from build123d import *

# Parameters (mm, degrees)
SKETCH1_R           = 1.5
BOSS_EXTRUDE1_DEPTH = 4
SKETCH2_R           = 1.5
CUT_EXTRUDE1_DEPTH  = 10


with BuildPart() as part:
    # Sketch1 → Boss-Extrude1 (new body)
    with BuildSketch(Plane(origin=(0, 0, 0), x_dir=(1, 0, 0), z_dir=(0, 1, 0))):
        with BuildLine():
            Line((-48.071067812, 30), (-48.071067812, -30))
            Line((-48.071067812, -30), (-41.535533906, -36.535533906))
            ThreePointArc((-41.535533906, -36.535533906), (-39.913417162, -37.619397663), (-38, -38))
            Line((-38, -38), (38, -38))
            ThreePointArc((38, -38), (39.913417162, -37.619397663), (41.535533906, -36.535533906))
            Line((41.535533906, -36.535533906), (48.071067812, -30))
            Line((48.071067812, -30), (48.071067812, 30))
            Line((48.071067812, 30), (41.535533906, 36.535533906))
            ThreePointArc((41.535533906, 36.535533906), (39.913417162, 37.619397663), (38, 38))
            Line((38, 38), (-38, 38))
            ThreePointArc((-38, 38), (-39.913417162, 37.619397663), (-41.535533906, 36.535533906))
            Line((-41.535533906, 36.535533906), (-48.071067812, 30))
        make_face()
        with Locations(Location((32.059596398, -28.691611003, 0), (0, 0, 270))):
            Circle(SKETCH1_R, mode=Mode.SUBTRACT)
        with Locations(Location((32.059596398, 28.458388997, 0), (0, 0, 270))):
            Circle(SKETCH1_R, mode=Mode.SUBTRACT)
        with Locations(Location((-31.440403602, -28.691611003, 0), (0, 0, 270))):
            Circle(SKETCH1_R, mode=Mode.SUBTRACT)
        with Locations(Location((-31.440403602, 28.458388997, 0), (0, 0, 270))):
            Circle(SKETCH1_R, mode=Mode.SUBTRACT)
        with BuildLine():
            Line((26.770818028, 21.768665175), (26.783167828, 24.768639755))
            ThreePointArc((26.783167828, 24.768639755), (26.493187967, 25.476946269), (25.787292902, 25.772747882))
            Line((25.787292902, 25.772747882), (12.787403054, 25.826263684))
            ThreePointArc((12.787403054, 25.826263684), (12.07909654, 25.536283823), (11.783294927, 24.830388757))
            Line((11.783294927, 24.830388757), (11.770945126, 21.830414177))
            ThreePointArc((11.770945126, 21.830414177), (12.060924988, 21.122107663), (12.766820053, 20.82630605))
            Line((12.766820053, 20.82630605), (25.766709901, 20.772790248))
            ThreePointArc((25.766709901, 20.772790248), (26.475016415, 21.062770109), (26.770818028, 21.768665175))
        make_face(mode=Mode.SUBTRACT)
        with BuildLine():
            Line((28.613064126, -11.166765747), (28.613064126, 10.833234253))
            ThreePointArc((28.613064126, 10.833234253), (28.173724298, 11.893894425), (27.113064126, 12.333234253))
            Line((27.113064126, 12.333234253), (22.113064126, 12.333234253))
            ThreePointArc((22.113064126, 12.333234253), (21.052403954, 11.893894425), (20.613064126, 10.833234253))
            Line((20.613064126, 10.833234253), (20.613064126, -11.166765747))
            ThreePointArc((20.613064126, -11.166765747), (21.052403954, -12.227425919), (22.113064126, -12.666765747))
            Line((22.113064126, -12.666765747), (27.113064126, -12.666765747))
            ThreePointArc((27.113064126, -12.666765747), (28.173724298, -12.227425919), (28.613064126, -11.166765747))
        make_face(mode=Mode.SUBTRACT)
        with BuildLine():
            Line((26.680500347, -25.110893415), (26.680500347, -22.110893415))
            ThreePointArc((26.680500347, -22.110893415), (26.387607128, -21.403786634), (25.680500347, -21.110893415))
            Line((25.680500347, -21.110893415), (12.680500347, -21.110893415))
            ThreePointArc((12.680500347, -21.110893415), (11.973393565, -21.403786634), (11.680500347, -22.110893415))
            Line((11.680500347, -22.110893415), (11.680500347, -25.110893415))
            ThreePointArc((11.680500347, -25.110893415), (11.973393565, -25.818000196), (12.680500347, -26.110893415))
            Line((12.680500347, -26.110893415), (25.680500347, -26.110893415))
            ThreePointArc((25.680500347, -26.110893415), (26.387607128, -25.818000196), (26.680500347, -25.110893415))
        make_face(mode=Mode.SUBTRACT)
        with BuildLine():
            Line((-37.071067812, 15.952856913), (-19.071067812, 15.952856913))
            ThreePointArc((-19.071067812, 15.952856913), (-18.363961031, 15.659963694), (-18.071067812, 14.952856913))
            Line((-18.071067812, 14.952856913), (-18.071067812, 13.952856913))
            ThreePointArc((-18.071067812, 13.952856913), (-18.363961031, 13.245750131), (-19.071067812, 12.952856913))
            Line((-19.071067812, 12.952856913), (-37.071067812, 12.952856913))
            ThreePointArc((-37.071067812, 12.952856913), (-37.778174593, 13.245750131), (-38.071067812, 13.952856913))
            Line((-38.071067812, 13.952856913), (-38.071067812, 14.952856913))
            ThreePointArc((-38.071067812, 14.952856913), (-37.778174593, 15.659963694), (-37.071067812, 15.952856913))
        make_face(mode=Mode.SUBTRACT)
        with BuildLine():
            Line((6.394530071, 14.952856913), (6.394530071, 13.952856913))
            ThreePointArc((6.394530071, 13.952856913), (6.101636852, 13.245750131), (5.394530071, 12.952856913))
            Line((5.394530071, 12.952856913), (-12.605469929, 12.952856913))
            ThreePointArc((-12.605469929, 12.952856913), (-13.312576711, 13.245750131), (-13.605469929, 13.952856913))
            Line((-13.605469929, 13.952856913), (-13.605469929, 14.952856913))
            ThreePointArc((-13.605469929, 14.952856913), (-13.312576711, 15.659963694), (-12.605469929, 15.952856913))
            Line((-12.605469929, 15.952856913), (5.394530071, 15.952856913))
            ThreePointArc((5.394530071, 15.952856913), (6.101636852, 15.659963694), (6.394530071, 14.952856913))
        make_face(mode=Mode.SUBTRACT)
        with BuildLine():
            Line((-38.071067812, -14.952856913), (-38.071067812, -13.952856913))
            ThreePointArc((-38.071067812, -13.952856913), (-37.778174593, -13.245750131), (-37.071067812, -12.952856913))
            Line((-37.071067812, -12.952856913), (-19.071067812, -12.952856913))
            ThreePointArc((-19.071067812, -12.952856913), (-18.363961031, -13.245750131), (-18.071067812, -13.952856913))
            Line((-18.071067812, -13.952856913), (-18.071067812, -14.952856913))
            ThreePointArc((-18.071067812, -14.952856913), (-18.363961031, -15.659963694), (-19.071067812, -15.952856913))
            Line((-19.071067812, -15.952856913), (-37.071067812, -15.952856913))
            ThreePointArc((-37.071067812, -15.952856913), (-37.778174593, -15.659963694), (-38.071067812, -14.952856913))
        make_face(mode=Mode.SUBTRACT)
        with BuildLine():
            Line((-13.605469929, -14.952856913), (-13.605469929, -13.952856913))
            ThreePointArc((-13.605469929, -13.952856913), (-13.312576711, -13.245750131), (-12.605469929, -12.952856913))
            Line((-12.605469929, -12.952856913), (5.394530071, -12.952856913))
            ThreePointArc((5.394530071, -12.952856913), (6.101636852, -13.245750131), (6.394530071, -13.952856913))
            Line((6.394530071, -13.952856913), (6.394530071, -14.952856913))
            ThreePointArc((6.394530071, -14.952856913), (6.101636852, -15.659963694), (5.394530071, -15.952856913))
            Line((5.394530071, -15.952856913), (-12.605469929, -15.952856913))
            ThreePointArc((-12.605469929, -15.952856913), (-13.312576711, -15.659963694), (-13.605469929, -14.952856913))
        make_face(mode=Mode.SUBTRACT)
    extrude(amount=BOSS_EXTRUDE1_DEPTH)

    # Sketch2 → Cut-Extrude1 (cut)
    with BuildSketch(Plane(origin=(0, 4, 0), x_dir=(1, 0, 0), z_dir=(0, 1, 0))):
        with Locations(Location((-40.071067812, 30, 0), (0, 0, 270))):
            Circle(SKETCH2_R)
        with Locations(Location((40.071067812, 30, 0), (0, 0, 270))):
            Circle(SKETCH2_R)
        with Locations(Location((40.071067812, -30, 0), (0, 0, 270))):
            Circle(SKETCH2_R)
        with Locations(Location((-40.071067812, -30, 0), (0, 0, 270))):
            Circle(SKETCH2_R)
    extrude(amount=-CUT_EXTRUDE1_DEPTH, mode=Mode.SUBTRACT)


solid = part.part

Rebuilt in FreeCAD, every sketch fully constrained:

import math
import FreeCAD as App
import Part
import Sketcher

doc = App.newDocument("Part")
body = doc.addObject("PartDesign::Body", "Body")

# Sketch on XZ plane
sketch1 = body.newObject("Sketcher::SketchObject", "Sketch")
sketch1.AttachmentSupport = (doc.getObject("XZ_Plane"), [""])
sketch1.MapMode = "FlatFace"
sketch1.addGeometry([
    Part.LineSegment(App.Vector(-48.1, -30, 0), App.Vector(-48.1, 30, 0)),  # 0
    Part.LineSegment(App.Vector(-48.1, 30, 0), App.Vector(-41.5, 36.5, 0)),  # 1
    Part.ArcOfCircle(Part.Circle(App.Vector(-38, 33, 0), App.Vector(0, 0, 1), 5), math.radians(90), math.radians(135)),  # 2
    Part.LineSegment(App.Vector(-38, 38, 0), App.Vector(38, 38, 0)),  # 3
    Part.ArcOfCircle(Part.Circle(App.Vector(38, 33, 0), App.Vector(0, 0, 1), 5), math.radians(45), math.radians(90)),  # 4
    Part.LineSegment(App.Vector(41.5, 36.5, 0), App.Vector(48.1, 30, 0)),  # 5
    Part.LineSegment(App.Vector(48.1, 30, 0), App.Vector(48.1, -30, 0)),  # 6
    Part.LineSegment(App.Vector(48.1, -30, 0), App.Vector(41.5, -36.5, 0)),  # 7
    Part.ArcOfCircle(Part.Circle(App.Vector(38, -33, 0), App.Vector(0, 0, 1), 5), math.radians(-90), math.radians(-45)),  # 8
    Part.LineSegment(App.Vector(38, -38, 0), App.Vector(-38, -38, 0)),  # 9
    Part.ArcOfCircle(Part.Circle(App.Vector(-38, -33, 0), App.Vector(0, 0, 1), 5), math.radians(-135), math.radians(-90)),  # 10
    Part.LineSegment(App.Vector(-41.5, -36.5, 0), App.Vector(-48.1, -30, 0)),  # 11
    Part.Circle(App.Vector(-31.4, 28.7, 0), App.Vector(0, 0, 1), 1.5),  # 12
    Part.ArcOfCircle(Part.Circle(App.Vector(-37.1, 15, 0), App.Vector(0, 0, 1), 1), math.radians(90), math.radians(180)),  # 13
    Part.LineSegment(App.Vector(-38.1, 15, 0), App.Vector(-38.1, 14, 0)),  # 14
    Part.ArcOfCircle(Part.Circle(App.Vector(-37.1, 14, 0), App.Vector(0, 0, 1), 1), math.radians(180), math.radians(270)),  # 15
    Part.LineSegment(App.Vector(-37.1, 13, 0), App.Vector(-19.1, 13, 0)),  # 16
    Part.ArcOfCircle(Part.Circle(App.Vector(-19.1, 14, 0), App.Vector(0, 0, 1), 1), math.radians(-90), math.radians(0)),  # 17
    Part.LineSegment(App.Vector(-18.1, 14, 0), App.Vector(-18.1, 15, 0)),  # 18
    Part.ArcOfCircle(Part.Circle(App.Vector(-19.1, 15, 0), App.Vector(0, 0, 1), 1), math.radians(0), math.radians(90)),  # 19
    Part.LineSegment(App.Vector(-19.1, 16, 0), App.Vector(-37.1, 16, 0)),  # 20
    Part.ArcOfCircle(Part.Circle(App.Vector(-12.6, 15, 0), App.Vector(0, 0, 1), 1), math.radians(90), math.radians(180)),  # 21
    Part.LineSegment(App.Vector(-13.6, 15, 0), App.Vector(-13.6, 14, 0)),  # 22
    Part.ArcOfCircle(Part.Circle(App.Vector(-12.6, 14, 0), App.Vector(0, 0, 1), 1), math.radians(180), math.radians(270)),  # 23
    Part.LineSegment(App.Vector(-12.6, 13, 0), App.Vector(5.4, 13, 0)),  # 24
    Part.ArcOfCircle(Part.Circle(App.Vector(5.4, 14, 0), App.Vector(0, 0, 1), 1), math.radians(-90), math.radians(0)),  # 25
    Part.LineSegment(App.Vector(6.4, 14, 0), App.Vector(6.4, 15, 0)),  # 26
    Part.ArcOfCircle(Part.Circle(App.Vector(5.4, 15, 0), App.Vector(0, 0, 1), 1), math.radians(0), math.radians(90)),  # 27
    Part.LineSegment(App.Vector(5.4, 16, 0), App.Vector(-12.6, 16, 0)),  # 28
    Part.LineSegment(App.Vector(26.7, 22.1, 0), App.Vector(26.7, 25.1, 0)),  # 29
    Part.ArcOfCircle(Part.Circle(App.Vector(25.7, 25.1, 0), App.Vector(0, 0, 1), 1), math.radians(0), math.radians(90)),  # 30
    Part.LineSegment(App.Vector(25.7, 26.1, 0), App.Vector(12.7, 26.1, 0)),  # 31
    Part.ArcOfCircle(Part.Circle(App.Vector(12.7, 25.1, 0), App.Vector(0, 0, 1), 1), math.radians(90), math.radians(180)),  # 32
    Part.LineSegment(App.Vector(11.7, 25.1, 0), App.Vector(11.7, 22.1, 0)),  # 33
    Part.ArcOfCircle(Part.Circle(App.Vector(12.7, 22.1, 0), App.Vector(0, 0, 1), 1), math.radians(180), math.radians(270)),  # 34
    Part.LineSegment(App.Vector(12.7, 21.1, 0), App.Vector(25.7, 21.1, 0)),  # 35
    Part.ArcOfCircle(Part.Circle(App.Vector(25.7, 22.1, 0), App.Vector(0, 0, 1), 1), math.radians(-90), math.radians(0)),  # 36
    Part.Circle(App.Vector(32.1, 28.7, 0), App.Vector(0, 0, 1), 1.5),  # 37
    Part.LineSegment(App.Vector(28.6, -10.8, 0), App.Vector(28.6, 11.2, 0)),  # 38
    Part.ArcOfCircle(Part.Circle(App.Vector(27.1, 11.2, 0), App.Vector(0, 0, 1), 1.5), math.radians(0), math.radians(90)),  # 39
    Part.LineSegment(App.Vector(27.1, 12.7, 0), App.Vector(22.1, 12.7, 0)),  # 40
    Part.ArcOfCircle(Part.Circle(App.Vector(22.1, 11.2, 0), App.Vector(0, 0, 1), 1.5), math.radians(90), math.radians(180)),  # 41
    Part.LineSegment(App.Vector(20.6, 11.2, 0), App.Vector(20.6, -10.8, 0)),  # 42
    Part.ArcOfCircle(Part.Circle(App.Vector(22.1, -10.8, 0), App.Vector(0, 0, 1), 1.5), math.radians(180), math.radians(270)),  # 43
    Part.LineSegment(App.Vector(22.1, -12.3, 0), App.Vector(27.1, -12.3, 0)),  # 44
    Part.ArcOfCircle(Part.Circle(App.Vector(27.1, -10.8, 0), App.Vector(0, 0, 1), 1.5), math.radians(-90), math.radians(0)),  # 45
    Part.ArcOfCircle(Part.Circle(App.Vector(-37.1, -15, 0), App.Vector(0, 0, 1), 1), math.radians(-180), math.radians(-90)),  # 46
    Part.LineSegment(App.Vector(-37.1, -16, 0), App.Vector(-19.1, -16, 0)),  # 47
    Part.ArcOfCircle(Part.Circle(App.Vector(-19.1, -15, 0), App.Vector(0, 0, 1), 1), math.radians(-90), math.radians(0)),  # 48
    Part.LineSegment(App.Vector(-18.1, -15, 0), App.Vector(-18.1, -14, 0)),  # 49
    Part.ArcOfCircle(Part.Circle(App.Vector(-19.1, -14, 0), App.Vector(0, 0, 1), 1), math.radians(0), math.radians(90)),  # 50
    Part.LineSegment(App.Vector(-19.1, -13, 0), App.Vector(-37.1, -13, 0)),  # 51
    Part.ArcOfCircle(Part.Circle(App.Vector(-37.1, -14, 0), App.Vector(0, 0, 1), 1), math.radians(90), math.radians(180)),  # 52
    Part.LineSegment(App.Vector(-38.1, -14, 0), App.Vector(-38.1, -15, 0)),  # 53
    Part.ArcOfCircle(Part.Circle(App.Vector(5.4, -15, 0), App.Vector(0, 0, 1), 1), math.radians(-90), math.radians(0)),  # 54
    Part.LineSegment(App.Vector(6.4, -15, 0), App.Vector(6.4, -14, 0)),  # 55
    Part.ArcOfCircle(Part.Circle(App.Vector(5.4, -14, 0), App.Vector(0, 0, 1), 1), math.radians(0), math.radians(90)),  # 56
    Part.LineSegment(App.Vector(5.4, -13, 0), App.Vector(-12.6, -13, 0)),  # 57
    Part.ArcOfCircle(Part.Circle(App.Vector(-12.6, -14, 0), App.Vector(0, 0, 1), 1), math.radians(90), math.radians(180)),  # 58
    Part.LineSegment(App.Vector(-13.6, -14, 0), App.Vector(-13.6, -15, 0)),  # 59
    Part.ArcOfCircle(Part.Circle(App.Vector(-12.6, -15, 0), App.Vector(0, 0, 1), 1), math.radians(180), math.radians(270)),  # 60
    Part.LineSegment(App.Vector(-12.6, -16, 0), App.Vector(5.4, -16, 0)),  # 61
    Part.Circle(App.Vector(-31.4, -28.5, 0), App.Vector(0, 0, 1), 1.5),  # 62
    Part.LineSegment(App.Vector(26.8, -24.8, 0), App.Vector(26.8, -21.8, 0)),  # 63
    Part.ArcOfCircle(Part.Circle(App.Vector(25.8, -21.8, 0), App.Vector(0, 0, 1), 1), math.radians(0), math.radians(90)),  # 64
    Part.LineSegment(App.Vector(25.8, -20.8, 0), App.Vector(12.8, -20.8, 0)),  # 65
    Part.ArcOfCircle(Part.Circle(App.Vector(12.8, -21.8, 0), App.Vector(0, 0, 1), 1), math.radians(90), math.radians(180)),  # 66
    Part.LineSegment(App.Vector(11.8, -21.8, 0), App.Vector(11.8, -24.8, 0)),  # 67
    Part.ArcOfCircle(Part.Circle(App.Vector(12.8, -24.8, 0), App.Vector(0, 0, 1), 1), math.radians(-180), math.radians(-90)),  # 68
    Part.LineSegment(App.Vector(12.8, -25.8, 0), App.Vector(25.8, -25.8, 0)),  # 69
    Part.ArcOfCircle(Part.Circle(App.Vector(25.8, -24.8, 0), App.Vector(0, 0, 1), 1), math.radians(-90), math.radians(0)),  # 70
    Part.Circle(App.Vector(32.1, -28.5, 0), App.Vector(0, 0, 1), 1.5),  # 71
], False)
sketch1.addConstraint([
    Sketcher.Constraint("Coincident", 0, 2, 1, 1),
    Sketcher.Constraint("Tangent", 1, 2, 2, 2),
    Sketcher.Constraint("Tangent", 2, 1, 3, 1),
    Sketcher.Constraint("Tangent", 3, 2, 4, 2),
    Sketcher.Constraint("Tangent", 4, 1, 5, 1),
    Sketcher.Constraint("Coincident", 5, 2, 6, 1),
    Sketcher.Constraint("Coincident", 6, 2, 7, 1),
    Sketcher.Constraint("Tangent", 7, 2, 8, 2),
    Sketcher.Constraint("Tangent", 8, 1, 9, 1),
    Sketcher.Constraint("Tangent", 9, 2, 10, 2),
    Sketcher.Constraint("Tangent", 10, 1, 11, 1),
    Sketcher.Constraint("Coincident", 11, 2, 0, 1),
    Sketcher.Constraint("Tangent", 13, 2, 14, 1),
    Sketcher.Constraint("Tangent", 14, 2, 15, 1),
    Sketcher.Constraint("Tangent", 15, 2, 16, 1),
    Sketcher.Constraint("Tangent", 16, 2, 17, 1),
    Sketcher.Constraint("Tangent", 17, 2, 18, 1),
    Sketcher.Constraint("Tangent", 18, 2, 19, 1),
    Sketcher.Constraint("Tangent", 19, 2, 20, 1),
    Sketcher.Constraint("Tangent", 20, 2, 13, 1),
    Sketcher.Constraint("Tangent", 21, 2, 22, 1),
    Sketcher.Constraint("Tangent", 22, 2, 23, 1),
    Sketcher.Constraint("Tangent", 23, 2, 24, 1),
    Sketcher.Constraint("Tangent", 24, 2, 25, 1),
    Sketcher.Constraint("Tangent", 25, 2, 26, 1),
    Sketcher.Constraint("Tangent", 26, 2, 27, 1),
    Sketcher.Constraint("Tangent", 27, 2, 28, 1),
    Sketcher.Constraint("Tangent", 28, 2, 21, 1),
    Sketcher.Constraint("Tangent", 29, 2, 30, 1),
    Sketcher.Constraint("Tangent", 30, 2, 31, 1),
    Sketcher.Constraint("Tangent", 31, 2, 32, 1),
    Sketcher.Constraint("Tangent", 32, 2, 33, 1),
    Sketcher.Constraint("Tangent", 33, 2, 34, 1),
    Sketcher.Constraint("Tangent", 34, 2, 35, 1),
    Sketcher.Constraint("Tangent", 35, 2, 36, 1),
    Sketcher.Constraint("Tangent", 36, 2, 29, 1),
    Sketcher.Constraint("Tangent", 38, 2, 39, 1),
    Sketcher.Constraint("Tangent", 39, 2, 40, 1),
    Sketcher.Constraint("Tangent", 40, 2, 41, 1),
    Sketcher.Constraint("Tangent", 41, 2, 42, 1),
    Sketcher.Constraint("Tangent", 42, 2, 43, 1),
    Sketcher.Constraint("Tangent", 43, 2, 44, 1),
    Sketcher.Constraint("Tangent", 44, 2, 45, 1),
    Sketcher.Constraint("Tangent", 45, 2, 38, 1),
    Sketcher.Constraint("Tangent", 46, 2, 47, 1),
    Sketcher.Constraint("Tangent", 47, 2, 48, 1),
    Sketcher.Constraint("Tangent", 48, 2, 49, 1),
    Sketcher.Constraint("Tangent", 49, 2, 50, 1),
    Sketcher.Constraint("Tangent", 50, 2, 51, 1),
    Sketcher.Constraint("Tangent", 51, 2, 52, 1),
    Sketcher.Constraint("Tangent", 52, 2, 53, 1),
    Sketcher.Constraint("Tangent", 53, 2, 46, 1),
    Sketcher.Constraint("Tangent", 54, 2, 55, 1),
    Sketcher.Constraint("Tangent", 55, 2, 56, 1),
    Sketcher.Constraint("Tangent", 56, 2, 57, 1),
    Sketcher.Constraint("Tangent", 57, 2, 58, 1),
    Sketcher.Constraint("Tangent", 58, 2, 59, 1),
    Sketcher.Constraint("Tangent", 59, 2, 60, 1),
    Sketcher.Constraint("Tangent", 60, 2, 61, 1),
    Sketcher.Constraint("Tangent", 61, 2, 54, 1),
    Sketcher.Constraint("Tangent", 63, 2, 64, 1),
    Sketcher.Constraint("Tangent", 64, 2, 65, 1),
    Sketcher.Constraint("Tangent", 65, 2, 66, 1),
    Sketcher.Constraint("Tangent", 66, 2, 67, 1),
    Sketcher.Constraint("Tangent", 67, 2, 68, 1),
    Sketcher.Constraint("Tangent", 68, 2, 69, 1),
    Sketcher.Constraint("Tangent", 69, 2, 70, 1),
    Sketcher.Constraint("Tangent", 70, 2, 63, 1),
    Sketcher.Constraint("Vertical", 0),
    Sketcher.Constraint("Horizontal", 3),
    Sketcher.Constraint("Vertical", 6),
    Sketcher.Constraint("Horizontal", 9),
    Sketcher.Constraint("Vertical", 14),
    Sketcher.Constraint("Horizontal", 16),
    Sketcher.Constraint("Vertical", 18),
    Sketcher.Constraint("Horizontal", 20),
    Sketcher.Constraint("Vertical", 22),
    Sketcher.Constraint("Horizontal", 24),
    Sketcher.Constraint("Vertical", 26),
    Sketcher.Constraint("Horizontal", 28),
    Sketcher.Constraint("Vertical", 29),
    Sketcher.Constraint("Horizontal", 31),
    Sketcher.Constraint("Vertical", 33),
    Sketcher.Constraint("Horizontal", 35),
    Sketcher.Constraint("Vertical", 38),
    Sketcher.Constraint("Horizontal", 40),
    Sketcher.Constraint("Vertical", 42),
    Sketcher.Constraint("Horizontal", 44),
    Sketcher.Constraint("Horizontal", 47),
    Sketcher.Constraint("Vertical", 49),
    Sketcher.Constraint("Horizontal", 51),
    Sketcher.Constraint("Vertical", 53),
    Sketcher.Constraint("Vertical", 55),
    Sketcher.Constraint("Horizontal", 57),
    Sketcher.Constraint("Vertical", 59),
    Sketcher.Constraint("Horizontal", 61),
    Sketcher.Constraint("Equal", 2, 4),
    Sketcher.Constraint("Equal", 4, 8),
    Sketcher.Constraint("Equal", 8, 10),
    Sketcher.Constraint("Equal", 13, 15),
    Sketcher.Constraint("Equal", 15, 17),
    Sketcher.Constraint("Equal", 17, 19),
    Sketcher.Constraint("Equal", 19, 21),
    Sketcher.Constraint("Equal", 21, 23),
    Sketcher.Constraint("Equal", 23, 25),
    Sketcher.Constraint("Equal", 25, 27),
    Sketcher.Constraint("Equal", 27, 30),
    Sketcher.Constraint("Equal", 30, 32),
    Sketcher.Constraint("Equal", 32, 34),
    Sketcher.Constraint("Equal", 34, 36),
    Sketcher.Constraint("Equal", 12, 37),
    Sketcher.Constraint("Equal", 37, 39),
    Sketcher.Constraint("Equal", 39, 41),
    Sketcher.Constraint("Equal", 41, 43),
    Sketcher.Constraint("Equal", 43, 45),
    Sketcher.Constraint("Equal", 36, 46),
    Sketcher.Constraint("Equal", 46, 48),
    Sketcher.Constraint("Equal", 48, 50),
    Sketcher.Constraint("Equal", 50, 52),
    Sketcher.Constraint("Equal", 52, 54),
    Sketcher.Constraint("Equal", 54, 56),
    Sketcher.Constraint("Equal", 56, 58),
    Sketcher.Constraint("Equal", 58, 60),
    Sketcher.Constraint("Equal", 45, 62),
    Sketcher.Constraint("Equal", 60, 64),
    Sketcher.Constraint("Equal", 64, 66),
    Sketcher.Constraint("Equal", 66, 68),
    Sketcher.Constraint("Equal", 68, 70),
    Sketcher.Constraint("Equal", 62, 71),
    Sketcher.Constraint("Symmetric", 2, 3, 8, 3, -1, 1),
    Sketcher.Constraint("Symmetric", 0, 2, 6, 2, -1, 1),
    Sketcher.Constraint("Symmetric", 4, 1, 10, 1, -1, 1),
    Sketcher.Constraint("Symmetric", 1, 2, 4, 1, -2),
    Sketcher.Constraint("Symmetric", 13, 3, 46, 3, -1),
    Sketcher.Constraint("Symmetric", 17, 3, 50, 3, -1),
    Sketcher.Constraint("Symmetric", 27, 3, 54, 3, -1),
    Sketcher.Constraint("Symmetric", 23, 3, 58, 3, -1),
    Sketcher.Constraint("Perpendicular", 1, 5),
    Sketcher.Constraint("Perpendicular", 63, 65),
    Sketcher.Constraint("Perpendicular", 65, 67),
    Sketcher.Constraint("Perpendicular", 67, 69),
    Sketcher.Constraint("Horizontal", 19, 3, 21, 3),
    Sketcher.Constraint("Horizontal", 17, 3, 23, 3),
    Sketcher.Constraint("Horizontal", 12, 3, 37, 3),
    Sketcher.Constraint("Horizontal", 62, 3, 71, 3),
    Sketcher.Constraint("Vertical", 12, 3, 62, 3),
    Sketcher.Constraint("Vertical", 37, 3, 71, 3),
    Sketcher.Constraint("Equal", 20, 24),
    Sketcher.Constraint("Diameter", 12, 3.0),
    Sketcher.Constraint("Radius", 2, 5.0),
    Sketcher.Constraint("Radius", 13, 1.0),
    Sketcher.Constraint("DistanceX", 3, 1, 3, 2, 76.0),
    Sketcher.Constraint("DistanceX", 16, 1, 16, 2, 18.0),
    Sketcher.Constraint("DistanceX", 31, 2, 31, 1, 13.0),
    Sketcher.Constraint("DistanceX", 40, 2, 40, 1, 5.0),
    Sketcher.Constraint("DistanceY", 0, 1, 0, 2, 60.0),
    Sketcher.Constraint("DistanceY", 14, 2, 14, 1, 1.0),
    Sketcher.Constraint("DistanceY", 29, 1, 29, 2, 3.0),
    Sketcher.Constraint("DistanceY", 38, 1, 38, 2, 22.0),
    Sketcher.Constraint("Distance", 63, 3.0),
    Sketcher.Constraint("Distance", 65, 13.0),
    Sketcher.Constraint("DistanceY", -1, 1, 2, 3, 33.0),
    Sketcher.Constraint("DistanceX", -1, 1, 30, 3, 25.6805),
    Sketcher.Constraint("DistanceY", -1, 1, 12, 3, 28.691611),
    Sketcher.Constraint("DistanceX", 21, 3, -1, 1, 12.60547),
    Sketcher.Constraint("DistanceY", 62, 3, -1, 1, 28.458389),
    Sketcher.Constraint("DistanceY", 64, 3, -1, 1, 21.772782),
    Sketcher.Constraint("DistanceX", -1, 1, 63, 2, 26.770818),
    Sketcher.Constraint("DistanceX", -1, 1, 64, 2, 25.76671),
    Sketcher.Constraint("DistanceX", 12, 3, -1, 1, 31.440404),
    Sketcher.Constraint("DistanceX", 13, 3, -1, 1, 37.071068),
    Sketcher.Constraint("DistanceY", -1, 1, 13, 3, 14.952857),
    Sketcher.Constraint("DistanceY", -1, 1, 30, 3, 25.110893),
    Sketcher.Constraint("DistanceX", -1, 1, 37, 3, 32.059596),
    Sketcher.Constraint("DistanceX", -1, 1, 39, 3, 27.113064),
    Sketcher.Constraint("DistanceY", -1, 1, 39, 3, 11.166766),
])
pad1 = body.newObject("PartDesign::Pad", "Pad")
pad1.Profile = sketch1
pad1.Length = 4
pad1.Reversed = True

# Sketch on XZ plane
sketch2 = body.newObject("Sketcher::SketchObject", "Sketch001")
sketch2.AttachmentSupport = (doc.getObject("XZ_Plane"), [""])
sketch2.MapMode = "FlatFace"
sketch2.AttachmentOffset = App.Placement(App.Vector(0, 0, -4), App.Rotation())
sketch2.addGeometry([
    Part.Circle(App.Vector(-40.1, -30, 0), App.Vector(0, 0, 1), 1.5),
    Part.Circle(App.Vector(40.1, -30, 0), App.Vector(0, 0, 1), 1.5),
    Part.Circle(App.Vector(40.1, 30, 0), App.Vector(0, 0, 1), 1.5),
    Part.Circle(App.Vector(-40.1, 30, 0), App.Vector(0, 0, 1), 1.5),
], False)
sketch2.addConstraint([
    Sketcher.Constraint("Equal", 0, 1),
    Sketcher.Constraint("Equal", 1, 2),
    Sketcher.Constraint("Equal", 2, 3),
    Sketcher.Constraint("Symmetric", 0, 3, 2, 3, -1, 1),
    Sketcher.Constraint("Symmetric", 1, 3, 3, 3, -1, 1),
    Sketcher.Constraint("Symmetric", 0, 3, 1, 3, -2),
    Sketcher.Constraint("Diameter", 0, 3.0),
    Sketcher.Constraint("DistanceY", 0, 3, -1, 1, 30.0),
    Sketcher.Constraint("DistanceX", 0, 3, -1, 1, 40.071068),
])
pocket1 = body.newObject("PartDesign::Pocket", "Pocket")
pocket1.Profile = sketch2
pocket1.Length = 10
pocket1.Reversed = True

doc.recompute()
